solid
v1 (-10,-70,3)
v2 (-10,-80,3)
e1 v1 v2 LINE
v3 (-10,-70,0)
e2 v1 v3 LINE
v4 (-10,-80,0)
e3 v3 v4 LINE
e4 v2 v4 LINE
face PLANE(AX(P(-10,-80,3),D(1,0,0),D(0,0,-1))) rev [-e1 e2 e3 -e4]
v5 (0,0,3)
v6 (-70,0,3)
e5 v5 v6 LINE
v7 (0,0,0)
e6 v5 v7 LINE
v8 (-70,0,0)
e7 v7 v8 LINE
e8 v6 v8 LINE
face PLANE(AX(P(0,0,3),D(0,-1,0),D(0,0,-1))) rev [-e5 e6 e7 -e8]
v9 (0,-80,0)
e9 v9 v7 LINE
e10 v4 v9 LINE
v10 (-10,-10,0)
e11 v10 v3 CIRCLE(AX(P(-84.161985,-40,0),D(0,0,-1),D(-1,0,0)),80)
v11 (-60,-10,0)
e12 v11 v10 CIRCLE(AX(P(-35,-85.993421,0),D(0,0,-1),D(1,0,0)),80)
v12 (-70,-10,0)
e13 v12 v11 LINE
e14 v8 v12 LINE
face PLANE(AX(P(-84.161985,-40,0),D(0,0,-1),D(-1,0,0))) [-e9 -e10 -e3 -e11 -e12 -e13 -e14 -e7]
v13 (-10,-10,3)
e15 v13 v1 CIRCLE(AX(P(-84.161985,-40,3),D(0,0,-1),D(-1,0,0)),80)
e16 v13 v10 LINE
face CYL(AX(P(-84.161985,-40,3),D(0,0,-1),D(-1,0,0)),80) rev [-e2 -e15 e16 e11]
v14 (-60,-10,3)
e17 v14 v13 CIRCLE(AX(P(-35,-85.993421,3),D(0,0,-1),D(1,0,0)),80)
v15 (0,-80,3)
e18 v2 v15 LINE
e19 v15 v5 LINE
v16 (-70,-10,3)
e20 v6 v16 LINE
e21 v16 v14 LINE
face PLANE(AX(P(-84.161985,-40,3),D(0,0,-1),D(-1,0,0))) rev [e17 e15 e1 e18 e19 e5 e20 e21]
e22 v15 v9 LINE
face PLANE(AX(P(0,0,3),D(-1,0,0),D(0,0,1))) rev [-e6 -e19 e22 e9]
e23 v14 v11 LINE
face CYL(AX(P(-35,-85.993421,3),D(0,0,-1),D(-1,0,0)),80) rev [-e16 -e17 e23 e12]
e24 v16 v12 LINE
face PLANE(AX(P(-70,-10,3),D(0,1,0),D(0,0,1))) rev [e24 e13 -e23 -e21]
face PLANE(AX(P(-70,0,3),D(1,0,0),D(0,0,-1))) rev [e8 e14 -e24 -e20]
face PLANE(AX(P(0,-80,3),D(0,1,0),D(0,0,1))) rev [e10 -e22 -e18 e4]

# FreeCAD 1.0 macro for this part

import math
import FreeCAD as App
import Part
import Sketcher

doc = App.newDocument("Part")
params = doc.addObject("Spreadsheet::Sheet", "Params")
for row, (alias, value) in enumerate([
    ("sketch1_radius", "80 mm"),
    ("sketch1_width", "70 mm"),
    ("sketch1_width2", "10 mm"),
    ("sketch1_height", "80 mm"),
    ("pad1_length", "3 mm"),
], start=1):
    params.set(f"A{row}", alias)
    params.set(f"B{row}", "=" + value)
    params.setAlias(f"B{row}", alias)

body = doc.addObject("PartDesign::Body", "Body")

sketch1 = doc.addObject("Sketcher::SketchObject", "Sketch")
body.addObject(sketch1)
sketch1.AttachmentSupport = (doc.XY_Plane, [""])
sketch1.MapMode = "FlatFace"
sketch1.addGeometry([
    Part.LineSegment(App.Vector(0, 0, 0), App.Vector(-70, 0, 0)),
    Part.LineSegment(App.Vector(-70, 0, 0), App.Vector(-70, -10, 0)),
    Part.LineSegment(App.Vector(-70, -10, 0), App.Vector(-60, -10, 0)),
    Part.ArcOfCircle(Part.Circle(App.Vector(-35, -86, 0), App.Vector(0, 0, 1), 80), math.radians(72), math.radians(108)),
    Part.ArcOfCircle(Part.Circle(App.Vector(-84, -40, 0), App.Vector(0, 0, 1), 80), math.radians(-22), math.radians(22)),
    Part.LineSegment(App.Vector(-10, -70, 0), App.Vector(-10, -80, 0)),
    Part.LineSegment(App.Vector(-10, -80, 0), App.Vector(0, -80, 0)),
    Part.LineSegment(App.Vector(0, -80, 0), App.Vector(0, 0, 0)),
], False)
sketch1.addConstraint([
    Sketcher.Constraint("Coincident", 0, 2, 1, 1),
    Sketcher.Constraint("Coincident", 1, 2, 2, 1),
    Sketcher.Constraint("Coincident", 2, 2, 3, 2),
    Sketcher.Constraint("Coincident", 3, 1, 4, 2),
    Sketcher.Constraint("Coincident", 4, 1, 5, 1),
    Sketcher.Constraint("Coincident", 5, 2, 6, 1),
    Sketcher.Constraint("Coincident", 6, 2, 7, 1),
    Sketcher.Constraint("Coincident", 7, 2, 0, 1),
    Sketcher.Constraint("Horizontal", 0),
    Sketcher.Constraint("Vertical", 1),
    Sketcher.Constraint("Horizontal", 2),
    Sketcher.Constraint("Vertical", 5),
    Sketcher.Constraint("Horizontal", 6),
    Sketcher.Constraint("Vertical", 7),
    Sketcher.Constraint("Coincident", 7, 2, -1, 1),
    Sketcher.Constraint("Equal", 3, 4),
    Sketcher.Constraint("Horizontal", 2, 2, 3, 1),
    Sketcher.Constraint("Vertical", 3, 1, 4, 1),
    Sketcher.Constraint("Equal", 2, 6),
    Sketcher.Constraint("Equal", 6, 1),
    Sketcher.Constraint("Equal", 1, 5),
    Sketcher.Constraint("Radius", 3, 80.0),
    Sketcher.Constraint("DistanceX", 0, 2, 0, 1, 70.0),
    Sketcher.Constraint("DistanceX", 2, 1, 2, 2, 10.0),
    Sketcher.Constraint("DistanceY", 7, 1, 7, 2, 80.0),
])
sketch1.setExpression("Constraints[21]", "Params.sketch1_radius")
sketch1.setExpression("Constraints[22]", "Params.sketch1_width")
sketch1.setExpression("Constraints[23]", "Params.sketch1_width2")
sketch1.setExpression("Constraints[24]", "Params.sketch1_height")
pad1 = doc.addObject("PartDesign::Pad", "Pad")
body.addObject(pad1)
pad1.Profile = sketch1
pad1.setExpression("Length", "Params.pad1_length")

doc.recompute()
